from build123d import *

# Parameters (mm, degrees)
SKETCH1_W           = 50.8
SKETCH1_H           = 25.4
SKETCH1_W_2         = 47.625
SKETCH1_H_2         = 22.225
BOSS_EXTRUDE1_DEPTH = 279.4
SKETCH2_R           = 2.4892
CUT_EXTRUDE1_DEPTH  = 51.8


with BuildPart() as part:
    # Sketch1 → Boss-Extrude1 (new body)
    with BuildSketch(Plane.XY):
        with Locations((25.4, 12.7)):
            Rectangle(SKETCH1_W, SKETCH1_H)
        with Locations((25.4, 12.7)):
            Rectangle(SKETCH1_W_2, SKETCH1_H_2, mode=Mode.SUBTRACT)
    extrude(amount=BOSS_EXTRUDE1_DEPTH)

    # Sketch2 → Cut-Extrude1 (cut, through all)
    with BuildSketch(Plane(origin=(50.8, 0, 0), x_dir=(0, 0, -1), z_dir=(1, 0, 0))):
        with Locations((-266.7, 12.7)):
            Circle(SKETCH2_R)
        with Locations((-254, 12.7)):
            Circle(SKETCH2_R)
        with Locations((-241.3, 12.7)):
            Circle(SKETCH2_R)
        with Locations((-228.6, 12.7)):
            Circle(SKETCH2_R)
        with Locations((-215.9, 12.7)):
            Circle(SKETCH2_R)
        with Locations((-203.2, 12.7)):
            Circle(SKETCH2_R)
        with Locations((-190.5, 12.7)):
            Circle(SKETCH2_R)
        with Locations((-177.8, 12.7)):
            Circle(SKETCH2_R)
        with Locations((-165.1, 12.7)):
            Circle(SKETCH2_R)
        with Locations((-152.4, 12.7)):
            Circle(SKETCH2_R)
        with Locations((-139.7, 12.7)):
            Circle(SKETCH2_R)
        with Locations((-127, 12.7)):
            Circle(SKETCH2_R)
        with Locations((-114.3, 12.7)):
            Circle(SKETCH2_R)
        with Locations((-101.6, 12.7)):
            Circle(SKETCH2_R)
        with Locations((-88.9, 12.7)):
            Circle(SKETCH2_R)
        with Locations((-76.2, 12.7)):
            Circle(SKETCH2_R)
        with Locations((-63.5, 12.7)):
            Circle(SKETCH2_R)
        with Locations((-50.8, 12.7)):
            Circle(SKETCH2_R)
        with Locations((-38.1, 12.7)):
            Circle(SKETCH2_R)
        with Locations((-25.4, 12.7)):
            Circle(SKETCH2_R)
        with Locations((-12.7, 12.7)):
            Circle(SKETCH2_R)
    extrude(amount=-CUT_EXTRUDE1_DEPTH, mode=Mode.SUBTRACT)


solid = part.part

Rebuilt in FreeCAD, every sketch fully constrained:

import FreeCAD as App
import Part
import Sketcher
Q = App.Units.Quantity


def add_polygon(sketch, points):
    """Adds a closed chain of lines whose ends are joined by coincident constraints."""
    first, n = sketch.GeometryCount, len(points)
    for a, b in zip(points, points[1:] + points[:1]):
        sketch.addGeometry(Part.LineSegment(App.Vector(*a, 0), App.Vector(*b, 0)), False)
    for i in range(n):
        sketch.addConstraint(Sketcher.Constraint("Coincident", first + i, 2, first + (i + 1) % n, 1))

doc = App.newDocument("Part")
body = doc.addObject("PartDesign::Body", "Body")

# Sketch on XY plane
sketch1 = body.newObject("Sketcher::SketchObject", "Sketch")
sketch1.AttachmentSupport = (doc.getObject("XY_Plane"), [""])
sketch1.MapMode = "FlatFace"
add_polygon(sketch1, [(0, 25), (0, 0), (51, 0), (51, 25)])  # lines 0-3
add_polygon(sketch1, [(49, 2), (2, 2), (2, 24), (49, 24)])  # lines 4-7
sketch1.addConstraint([
    Sketcher.Constraint("Vertical", 0),
    Sketcher.Constraint("Horizontal", 1),
    Sketcher.Constraint("Vertical", 2),
    Sketcher.Constraint("Horizontal", 3),
    Sketcher.Constraint("Horizontal", 4),
    Sketcher.Constraint("Vertical", 5),
    Sketcher.Constraint("Horizontal", 6),
    Sketcher.Constraint("Vertical", 7),
    Sketcher.Constraint("Coincident", 0, 2, -1, 1),
    Sketcher.Constraint("DistanceX", 1, 1, 1, 2, Q("2 in")),
    Sketcher.Constraint("DistanceY", 0, 2, 0, 1, Q("1 in")),
    Sketcher.Constraint("DistanceX", 4, 2, 4, 1, Q("1.875 in")),
    Sketcher.Constraint("DistanceY", 5, 1, 5, 2, Q("0.875 in")),
    Sketcher.Constraint("DistanceX", -1, 1, 4, 2, Q("0.0625 in")),
    Sketcher.Constraint("DistanceY", -1, 1, 4, 2, Q("0.0625 in")),
])
pad1 = body.newObject("PartDesign::Pad", "Pad")
pad1.Profile = sketch1
pad1.Length = Q("11 in")

# Sketch on YZ plane
sketch2 = body.newObject("Sketcher::SketchObject", "Sketch001")
sketch2.AttachmentSupport = (doc.getObject("YZ_Plane"), [""])
sketch2.MapMode = "FlatFace"
sketch2.AttachmentOffset = App.Placement(App.Vector(0, 0, 2 * 25.4), App.Rotation())
sketch2.addGeometry([
    Part.Circle(App.Vector(12.7, 266.7, 0), App.Vector(0, 0, 1), 2.5),  # 0
    Part.Circle(App.Vector(12.7, 254, 0), App.Vector(0, 0, 1), 2.5),  # 1
    Part.Circle(App.Vector(12.7, 241.3, 0), App.Vector(0, 0, 1), 2.5),  # 2
    Part.Circle(App.Vector(12.7, 228.6, 0), App.Vector(0, 0, 1), 2.5),  # 3
    Part.Circle(App.Vector(12.7, 215.9, 0), App.Vector(0, 0, 1), 2.5),  # 4
    Part.Circle(App.Vector(12.7, 203.2, 0), App.Vector(0, 0, 1), 2.5),  # 5
    Part.Circle(App.Vector(12.7, 190.5, 0), App.Vector(0, 0, 1), 2.5),  # 6
    Part.Circle(App.Vector(12.7, 177.8, 0), App.Vector(0, 0, 1), 2.5),  # 7
    Part.Circle(App.Vector(12.7, 165.1, 0), App.Vector(0, 0, 1), 2.5),  # 8
    Part.Circle(App.Vector(12.7, 152.4, 0), App.Vector(0, 0, 1), 2.5),  # 9
    Part.Circle(App.Vector(12.7, 139.7, 0), App.Vector(0, 0, 1), 2.5),  # 10
    Part.Circle(App.Vector(12.7, 127, 0), App.Vector(0, 0, 1), 2.5),  # 11
    Part.Circle(App.Vector(12.7, 114.3, 0), App.Vector(0, 0, 1), 2.5),  # 12
    Part.Circle(App.Vector(12.7, 101.6, 0), App.Vector(0, 0, 1), 2.5),  # 13
    Part.Circle(App.Vector(12.7, 88.9, 0), App.Vector(0, 0, 1), 2.5),  # 14
    Part.Circle(App.Vector(12.7, 76.2, 0), App.Vector(0, 0, 1), 2.5),  # 15
    Part.Circle(App.Vector(12.7, 63.5, 0), App.Vector(0, 0, 1), 2.5),  # 16
    Part.Circle(App.Vector(12.7, 50.8, 0), App.Vector(0, 0, 1), 2.5),  # 17
    Part.Circle(App.Vector(12.7, 38.1, 0), App.Vector(0, 0, 1), 2.5),  # 18
    Part.Circle(App.Vector(12.7, 25.4, 0), App.Vector(0, 0, 1), 2.5),  # 19
    Part.Circle(App.Vector(12.7, 12.7, 0), App.Vector(0, 0, 1), 2.5),  # 20
], False)
sketch2.addConstraint([
    Sketcher.Constraint("Equal", 0, 1),
    Sketcher.Constraint("Equal", 1, 2),
    Sketcher.Constraint("Equal", 2, 3),
    Sketcher.Constraint("Equal", 3, 4),
    Sketcher.Constraint("Equal", 4, 5),
    Sketcher.Constraint("Equal", 5, 6),
    Sketcher.Constraint("Equal", 6, 7),
    Sketcher.Constraint("Equal", 7, 8),
    Sketcher.Constraint("Equal", 8, 9),
    Sketcher.Constraint("Equal", 9, 10),
    Sketcher.Constraint("Equal", 10, 11),
    Sketcher.Constraint("Equal", 11, 12),
    Sketcher.Constraint("Equal", 12, 13),
    Sketcher.Constraint("Equal", 13, 14),
    Sketcher.Constraint("Equal", 14, 15),
    Sketcher.Constraint("Equal", 15, 16),
    Sketcher.Constraint("Equal", 16, 17),
    Sketcher.Constraint("Equal", 17, 18),
    Sketcher.Constraint("Equal", 18, 19),
    Sketcher.Constraint("Equal", 19, 20),
    Sketcher.Constraint("Vertical", 0, 3, 1, 3),
    Sketcher.Constraint("Vertical", 1, 3, 2, 3),
    Sketcher.Constraint("Vertical", 2, 3, 3, 3),
    Sketcher.Constraint("Vertical", 3, 3, 4, 3),
    Sketcher.Constraint("Vertical", 4, 3, 5, 3),
    Sketcher.Constraint("Vertical", 5, 3, 6, 3),
    Sketcher.Constraint("Vertical", 6, 3, 7, 3),
    Sketcher.Constraint("Vertical", 7, 3, 8, 3),
    Sketcher.Constraint("Vertical", 8, 3, 9, 3),
    Sketcher.Constraint("Vertical", 9, 3, 10, 3),
    Sketcher.Constraint("Vertical", 10, 3, 11, 3),
    Sketcher.Constraint("Vertical", 11, 3, 12, 3),
    Sketcher.Constraint("Vertical", 12, 3, 13, 3),
    Sketcher.Constraint("Vertical", 13, 3, 14, 3),
    Sketcher.Constraint("Vertical", 14, 3, 15, 3),
    Sketcher.Constraint("Vertical", 15, 3, 16, 3),
    Sketcher.Constraint("Vertical", 16, 3, 17, 3),
    Sketcher.Constraint("Vertical", 17, 3, 18, 3),
    Sketcher.Constraint("Vertical", 18, 3, 19, 3),
    Sketcher.Constraint("Vertical", 19, 3, 20, 3),
    Sketcher.Constraint("Diameter", 0, Q("0.196 in")),
    Sketcher.Constraint("DistanceY", -1, 1, 1, 3, Q("10 in")),
    Sketcher.Constraint("DistanceY", -1, 1, 3, 3, Q("9 in")),
    Sketcher.Constraint("DistanceY", -1, 1, 5, 3, Q("8 in")),
    Sketcher.Constraint("DistanceY", -1, 1, 7, 3, Q("7 in")),
    Sketcher.Constraint("DistanceY", -1, 1, 9, 3, Q("6 in")),
    Sketcher.Constraint("DistanceY", -1, 1, 11, 3, Q("5 in")),
    Sketcher.Constraint("DistanceY", -1, 1, 13, 3, Q("4 in")),
    Sketcher.Constraint("DistanceY", -1, 1, 15, 3, Q("3 in")),
    Sketcher.Constraint("DistanceY", -1, 1, 17, 3, Q("2 in")),
    Sketcher.Constraint("DistanceY", -1, 1, 19, 3, Q("1 in")),
    Sketcher.Constraint("DistanceY", 2, 3, 0, 3, Q("1 in")),
    Sketcher.Constraint("DistanceY", 4, 3, 2, 3, Q("1 in")),
    Sketcher.Constraint("DistanceY", 6, 3, 4, 3, Q("1 in")),
    Sketcher.Constraint("DistanceY", 8, 3, 6, 3, Q("1 in")),
    Sketcher.Constraint("DistanceY", 10, 3, 8, 3, Q("1 in")),
    Sketcher.Constraint("DistanceY", 12, 3, 10, 3, Q("1 in")),
    Sketcher.Constraint("DistanceY", 14, 3, 12, 3, Q("1 in")),
    Sketcher.Constraint("DistanceY", 16, 3, 14, 3, Q("1 in")),
    Sketcher.Constraint("DistanceY", 18, 3, 16, 3, Q("1 in")),
    Sketcher.Constraint("DistanceY", 20, 3, 18, 3, Q("1 in")),
    Sketcher.Constraint("DistanceX", -1, 1, 0, 3, Q("0.5 in")),
    Sketcher.Constraint("DistanceY", -1, 1, 0, 3, Q("10.5 in")),
])
pocket1 = body.newObject("PartDesign::Pocket", "Pocket")
pocket1.Profile = sketch2
pocket1.Type = "ThroughAll"

doc.recompute()
